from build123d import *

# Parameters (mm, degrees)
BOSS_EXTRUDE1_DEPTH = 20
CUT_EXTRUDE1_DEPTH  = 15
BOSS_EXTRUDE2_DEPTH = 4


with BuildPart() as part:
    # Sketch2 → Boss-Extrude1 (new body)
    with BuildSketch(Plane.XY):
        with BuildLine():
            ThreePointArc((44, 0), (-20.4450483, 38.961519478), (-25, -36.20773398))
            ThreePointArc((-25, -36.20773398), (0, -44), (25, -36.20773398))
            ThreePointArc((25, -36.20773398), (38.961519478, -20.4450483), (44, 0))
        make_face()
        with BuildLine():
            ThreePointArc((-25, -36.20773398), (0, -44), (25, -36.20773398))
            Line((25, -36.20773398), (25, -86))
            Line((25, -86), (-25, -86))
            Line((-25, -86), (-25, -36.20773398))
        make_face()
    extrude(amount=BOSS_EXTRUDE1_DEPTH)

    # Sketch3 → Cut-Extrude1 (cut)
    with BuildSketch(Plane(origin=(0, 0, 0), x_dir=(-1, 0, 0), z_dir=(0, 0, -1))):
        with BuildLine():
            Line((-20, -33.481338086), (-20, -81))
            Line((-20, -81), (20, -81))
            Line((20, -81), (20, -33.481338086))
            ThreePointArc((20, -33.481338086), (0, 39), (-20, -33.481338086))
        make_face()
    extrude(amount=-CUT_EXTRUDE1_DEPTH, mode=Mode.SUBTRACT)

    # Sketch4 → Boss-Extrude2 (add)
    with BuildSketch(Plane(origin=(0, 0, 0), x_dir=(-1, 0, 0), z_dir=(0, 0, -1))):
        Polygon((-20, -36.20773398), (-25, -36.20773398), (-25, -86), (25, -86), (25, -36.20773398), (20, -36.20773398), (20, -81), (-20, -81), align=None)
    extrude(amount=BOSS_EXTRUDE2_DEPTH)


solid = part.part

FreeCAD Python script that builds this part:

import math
import FreeCAD as App
import Part
import Sketcher

V = App.Vector

doc = App.newDocument("Part")
body = doc.addObject("PartDesign::Body", "Body")

# Sketch on XY plane
sketch1 = body.newObject("Sketcher::SketchObject", "Sketch")
sketch1.AttachmentSupport = (doc.getObject("XY_Plane"), [""])
sketch1.MapMode = "FlatFace"
sketch1.addGeometry([
    Part.ArcOfCircle(Part.Circle(V(0, 0, 0), V(0, 0, 1), 44), math.radians(0), math.radians(235.376465)),  # 0
    Part.LineSegment(V(-25, -36.207734, 0), V(-25, -86, 0)),  # 1
    Part.LineSegment(V(-25, -86, 0), V(25, -86, 0)),  # 2
    Part.LineSegment(V(25, -86, 0), V(25, -36.207734, 0)),  # 3
    Part.ArcOfCircle(Part.Circle(V(0, 0, 0), V(0, 0, 1), 44), math.radians(-55.376465), math.radians(0)),  # 4
], False)
sketch1.addConstraint([
    Sketcher.Constraint("Coincident", 0, 2, 1, 1),
    Sketcher.Constraint("Coincident", 1, 2, 2, 1),
    Sketcher.Constraint("Coincident", 2, 2, 3, 1),
    Sketcher.Constraint("Coincident", 3, 2, 4, 1),
    Sketcher.Constraint("Tangent", 4, 2, 0, 1),
    Sketcher.Constraint("Vertical", 1),
    Sketcher.Constraint("Horizontal", 2),
    Sketcher.Constraint("Vertical", 3),
    Sketcher.Constraint("Coincident", 0, 3, -1, 1),
    Sketcher.Constraint("Equal", 0, 4),
    Sketcher.Constraint("PointOnObject", 4, 2, -1),
    Sketcher.Constraint("Horizontal", 0, 2, 3, 2),
    Sketcher.Constraint("Radius", 0, 44.0),
    Sketcher.Constraint("DistanceX", 2, 1, 2, 2, 50.0),
    Sketcher.Constraint("DistanceY", 1, 2, -1, 1, 86.0),
])
pad1 = body.newObject("PartDesign::Pad", "Pad")
pad1.Profile = sketch1
pad1.Length = 20

# Sketch on XY plane
sketch2 = body.newObject("Sketcher::SketchObject", "Sketch001")
sketch2.AttachmentSupport = (doc.getObject("XY_Plane"), [""])
sketch2.MapMode = "FlatFace"
sketch2.addGeometry([
    Part.LineSegment(V(20, -33.481338, 0), V(20, -81, 0)),
    Part.LineSegment(V(20, -81, 0), V(-20, -81, 0)),
    Part.LineSegment(V(-20, -81, 0), V(-20, -33.481338, 0)),
    Part.ArcOfCircle(Part.Circle(V(0, 0, 0), V(0, 0, 1), 39), math.radians(-59.148114), math.radians(239.148114)),
], False)
sketch2.addConstraint([
    Sketcher.Constraint("Coincident", 0, 2, 1, 1),
    Sketcher.Constraint("Coincident", 1, 2, 2, 1),
    Sketcher.Constraint("Coincident", 2, 2, 3, 2),
    Sketcher.Constraint("Coincident", 3, 1, 0, 1),
    Sketcher.Constraint("Vertical", 0),
    Sketcher.Constraint("Horizontal", 1),
    Sketcher.Constraint("Vertical", 2),
    Sketcher.Constraint("Coincident", 3, 3, -1, 1),
    Sketcher.Constraint("Horizontal", 2, 2, 3, 1),
    Sketcher.Constraint("Radius", 3, 39.0),
    Sketcher.Constraint("DistanceX", 1, 2, 1, 1, 40.0),
    Sketcher.Constraint("DistanceY", 0, 2, -1, 1, 81.0),
])
pocket1 = body.newObject("PartDesign::Pocket", "Pocket")
pocket1.Profile = sketch2
pocket1.Length = 15
pocket1.Reversed = True

# Sketch on XY plane
sketch3 = body.newObject("Sketcher::SketchObject", "Sketch002")
sketch3.AttachmentSupport = (doc.getObject("XY_Plane"), [""])
sketch3.MapMode = "FlatFace"
sketch3.addGeometry([
    Part.LineSegment(V(20, -36.207734, 0), V(25, -36.207734, 0)),  # 0
    Part.LineSegment(V(25, -36.207734, 0), V(25, -86, 0)),  # 1
    Part.LineSegment(V(25, -86, 0), V(-25, -86, 0)),  # 2
    Part.LineSegment(V(-25, -86, 0), V(-25, -36.207734, 0)),  # 3
    Part.LineSegment(V(-25, -36.207734, 0), V(-20, -36.207734, 0)),  # 4
    Part.LineSegment(V(-20, -36.207734, 0), V(-20, -81, 0)),  # 5
    Part.LineSegment(V(-20, -81, 0), V(20, -81, 0)),  # 6
    Part.LineSegment(V(20, -81, 0), V(20, -36.207734, 0)),  # 7
], False)
sketch3.addConstraint([
    Sketcher.Constraint("Coincident", 0, 2, 1, 1),
    Sketcher.Constraint("Coincident", 1, 2, 2, 1),
    Sketcher.Constraint("Coincident", 2, 2, 3, 1),
    Sketcher.Constraint("Coincident", 3, 2, 4, 1),
    Sketcher.Constraint("Coincident", 4, 2, 5, 1),
    Sketcher.Constraint("Coincident", 5, 2, 6, 1),
    Sketcher.Constraint("Coincident", 6, 2, 7, 1),
    Sketcher.Constraint("Coincident", 7, 2, 0, 1),
    Sketcher.Constraint("Horizontal", 0),
    Sketcher.Constraint("Vertical", 1),
    Sketcher.Constraint("Horizontal", 2),
    Sketcher.Constraint("Vertical", 3),
    Sketcher.Constraint("Horizontal", 4),
    Sketcher.Constraint("Vertical", 5),
    Sketcher.Constraint("Horizontal", 6),
    Sketcher.Constraint("Vertical", 7),
    Sketcher.Constraint("Symmetric", 0, 2, 3, 2, -2),
    Sketcher.Constraint("Equal", 0, 4),
    Sketcher.Constraint("DistanceX", 0, 1, 0, 2, 5.0),
    Sketcher.Constraint("DistanceX", 2, 2, 2, 1, 50.0),
    Sketcher.Constraint("DistanceY", 1, 2, -1, 1, 86.0),
    Sketcher.Constraint("DistanceY", 5, 2, -1, 1, 81.0),
    Sketcher.Constraint("DistanceY", 1, 2, 1, 1, 49.792266),
])
pad2 = body.newObject("PartDesign::Pad", "Pad001")
pad2.Profile = sketch3
pad2.Length = 4
pad2.Reversed = True

doc.recompute()
